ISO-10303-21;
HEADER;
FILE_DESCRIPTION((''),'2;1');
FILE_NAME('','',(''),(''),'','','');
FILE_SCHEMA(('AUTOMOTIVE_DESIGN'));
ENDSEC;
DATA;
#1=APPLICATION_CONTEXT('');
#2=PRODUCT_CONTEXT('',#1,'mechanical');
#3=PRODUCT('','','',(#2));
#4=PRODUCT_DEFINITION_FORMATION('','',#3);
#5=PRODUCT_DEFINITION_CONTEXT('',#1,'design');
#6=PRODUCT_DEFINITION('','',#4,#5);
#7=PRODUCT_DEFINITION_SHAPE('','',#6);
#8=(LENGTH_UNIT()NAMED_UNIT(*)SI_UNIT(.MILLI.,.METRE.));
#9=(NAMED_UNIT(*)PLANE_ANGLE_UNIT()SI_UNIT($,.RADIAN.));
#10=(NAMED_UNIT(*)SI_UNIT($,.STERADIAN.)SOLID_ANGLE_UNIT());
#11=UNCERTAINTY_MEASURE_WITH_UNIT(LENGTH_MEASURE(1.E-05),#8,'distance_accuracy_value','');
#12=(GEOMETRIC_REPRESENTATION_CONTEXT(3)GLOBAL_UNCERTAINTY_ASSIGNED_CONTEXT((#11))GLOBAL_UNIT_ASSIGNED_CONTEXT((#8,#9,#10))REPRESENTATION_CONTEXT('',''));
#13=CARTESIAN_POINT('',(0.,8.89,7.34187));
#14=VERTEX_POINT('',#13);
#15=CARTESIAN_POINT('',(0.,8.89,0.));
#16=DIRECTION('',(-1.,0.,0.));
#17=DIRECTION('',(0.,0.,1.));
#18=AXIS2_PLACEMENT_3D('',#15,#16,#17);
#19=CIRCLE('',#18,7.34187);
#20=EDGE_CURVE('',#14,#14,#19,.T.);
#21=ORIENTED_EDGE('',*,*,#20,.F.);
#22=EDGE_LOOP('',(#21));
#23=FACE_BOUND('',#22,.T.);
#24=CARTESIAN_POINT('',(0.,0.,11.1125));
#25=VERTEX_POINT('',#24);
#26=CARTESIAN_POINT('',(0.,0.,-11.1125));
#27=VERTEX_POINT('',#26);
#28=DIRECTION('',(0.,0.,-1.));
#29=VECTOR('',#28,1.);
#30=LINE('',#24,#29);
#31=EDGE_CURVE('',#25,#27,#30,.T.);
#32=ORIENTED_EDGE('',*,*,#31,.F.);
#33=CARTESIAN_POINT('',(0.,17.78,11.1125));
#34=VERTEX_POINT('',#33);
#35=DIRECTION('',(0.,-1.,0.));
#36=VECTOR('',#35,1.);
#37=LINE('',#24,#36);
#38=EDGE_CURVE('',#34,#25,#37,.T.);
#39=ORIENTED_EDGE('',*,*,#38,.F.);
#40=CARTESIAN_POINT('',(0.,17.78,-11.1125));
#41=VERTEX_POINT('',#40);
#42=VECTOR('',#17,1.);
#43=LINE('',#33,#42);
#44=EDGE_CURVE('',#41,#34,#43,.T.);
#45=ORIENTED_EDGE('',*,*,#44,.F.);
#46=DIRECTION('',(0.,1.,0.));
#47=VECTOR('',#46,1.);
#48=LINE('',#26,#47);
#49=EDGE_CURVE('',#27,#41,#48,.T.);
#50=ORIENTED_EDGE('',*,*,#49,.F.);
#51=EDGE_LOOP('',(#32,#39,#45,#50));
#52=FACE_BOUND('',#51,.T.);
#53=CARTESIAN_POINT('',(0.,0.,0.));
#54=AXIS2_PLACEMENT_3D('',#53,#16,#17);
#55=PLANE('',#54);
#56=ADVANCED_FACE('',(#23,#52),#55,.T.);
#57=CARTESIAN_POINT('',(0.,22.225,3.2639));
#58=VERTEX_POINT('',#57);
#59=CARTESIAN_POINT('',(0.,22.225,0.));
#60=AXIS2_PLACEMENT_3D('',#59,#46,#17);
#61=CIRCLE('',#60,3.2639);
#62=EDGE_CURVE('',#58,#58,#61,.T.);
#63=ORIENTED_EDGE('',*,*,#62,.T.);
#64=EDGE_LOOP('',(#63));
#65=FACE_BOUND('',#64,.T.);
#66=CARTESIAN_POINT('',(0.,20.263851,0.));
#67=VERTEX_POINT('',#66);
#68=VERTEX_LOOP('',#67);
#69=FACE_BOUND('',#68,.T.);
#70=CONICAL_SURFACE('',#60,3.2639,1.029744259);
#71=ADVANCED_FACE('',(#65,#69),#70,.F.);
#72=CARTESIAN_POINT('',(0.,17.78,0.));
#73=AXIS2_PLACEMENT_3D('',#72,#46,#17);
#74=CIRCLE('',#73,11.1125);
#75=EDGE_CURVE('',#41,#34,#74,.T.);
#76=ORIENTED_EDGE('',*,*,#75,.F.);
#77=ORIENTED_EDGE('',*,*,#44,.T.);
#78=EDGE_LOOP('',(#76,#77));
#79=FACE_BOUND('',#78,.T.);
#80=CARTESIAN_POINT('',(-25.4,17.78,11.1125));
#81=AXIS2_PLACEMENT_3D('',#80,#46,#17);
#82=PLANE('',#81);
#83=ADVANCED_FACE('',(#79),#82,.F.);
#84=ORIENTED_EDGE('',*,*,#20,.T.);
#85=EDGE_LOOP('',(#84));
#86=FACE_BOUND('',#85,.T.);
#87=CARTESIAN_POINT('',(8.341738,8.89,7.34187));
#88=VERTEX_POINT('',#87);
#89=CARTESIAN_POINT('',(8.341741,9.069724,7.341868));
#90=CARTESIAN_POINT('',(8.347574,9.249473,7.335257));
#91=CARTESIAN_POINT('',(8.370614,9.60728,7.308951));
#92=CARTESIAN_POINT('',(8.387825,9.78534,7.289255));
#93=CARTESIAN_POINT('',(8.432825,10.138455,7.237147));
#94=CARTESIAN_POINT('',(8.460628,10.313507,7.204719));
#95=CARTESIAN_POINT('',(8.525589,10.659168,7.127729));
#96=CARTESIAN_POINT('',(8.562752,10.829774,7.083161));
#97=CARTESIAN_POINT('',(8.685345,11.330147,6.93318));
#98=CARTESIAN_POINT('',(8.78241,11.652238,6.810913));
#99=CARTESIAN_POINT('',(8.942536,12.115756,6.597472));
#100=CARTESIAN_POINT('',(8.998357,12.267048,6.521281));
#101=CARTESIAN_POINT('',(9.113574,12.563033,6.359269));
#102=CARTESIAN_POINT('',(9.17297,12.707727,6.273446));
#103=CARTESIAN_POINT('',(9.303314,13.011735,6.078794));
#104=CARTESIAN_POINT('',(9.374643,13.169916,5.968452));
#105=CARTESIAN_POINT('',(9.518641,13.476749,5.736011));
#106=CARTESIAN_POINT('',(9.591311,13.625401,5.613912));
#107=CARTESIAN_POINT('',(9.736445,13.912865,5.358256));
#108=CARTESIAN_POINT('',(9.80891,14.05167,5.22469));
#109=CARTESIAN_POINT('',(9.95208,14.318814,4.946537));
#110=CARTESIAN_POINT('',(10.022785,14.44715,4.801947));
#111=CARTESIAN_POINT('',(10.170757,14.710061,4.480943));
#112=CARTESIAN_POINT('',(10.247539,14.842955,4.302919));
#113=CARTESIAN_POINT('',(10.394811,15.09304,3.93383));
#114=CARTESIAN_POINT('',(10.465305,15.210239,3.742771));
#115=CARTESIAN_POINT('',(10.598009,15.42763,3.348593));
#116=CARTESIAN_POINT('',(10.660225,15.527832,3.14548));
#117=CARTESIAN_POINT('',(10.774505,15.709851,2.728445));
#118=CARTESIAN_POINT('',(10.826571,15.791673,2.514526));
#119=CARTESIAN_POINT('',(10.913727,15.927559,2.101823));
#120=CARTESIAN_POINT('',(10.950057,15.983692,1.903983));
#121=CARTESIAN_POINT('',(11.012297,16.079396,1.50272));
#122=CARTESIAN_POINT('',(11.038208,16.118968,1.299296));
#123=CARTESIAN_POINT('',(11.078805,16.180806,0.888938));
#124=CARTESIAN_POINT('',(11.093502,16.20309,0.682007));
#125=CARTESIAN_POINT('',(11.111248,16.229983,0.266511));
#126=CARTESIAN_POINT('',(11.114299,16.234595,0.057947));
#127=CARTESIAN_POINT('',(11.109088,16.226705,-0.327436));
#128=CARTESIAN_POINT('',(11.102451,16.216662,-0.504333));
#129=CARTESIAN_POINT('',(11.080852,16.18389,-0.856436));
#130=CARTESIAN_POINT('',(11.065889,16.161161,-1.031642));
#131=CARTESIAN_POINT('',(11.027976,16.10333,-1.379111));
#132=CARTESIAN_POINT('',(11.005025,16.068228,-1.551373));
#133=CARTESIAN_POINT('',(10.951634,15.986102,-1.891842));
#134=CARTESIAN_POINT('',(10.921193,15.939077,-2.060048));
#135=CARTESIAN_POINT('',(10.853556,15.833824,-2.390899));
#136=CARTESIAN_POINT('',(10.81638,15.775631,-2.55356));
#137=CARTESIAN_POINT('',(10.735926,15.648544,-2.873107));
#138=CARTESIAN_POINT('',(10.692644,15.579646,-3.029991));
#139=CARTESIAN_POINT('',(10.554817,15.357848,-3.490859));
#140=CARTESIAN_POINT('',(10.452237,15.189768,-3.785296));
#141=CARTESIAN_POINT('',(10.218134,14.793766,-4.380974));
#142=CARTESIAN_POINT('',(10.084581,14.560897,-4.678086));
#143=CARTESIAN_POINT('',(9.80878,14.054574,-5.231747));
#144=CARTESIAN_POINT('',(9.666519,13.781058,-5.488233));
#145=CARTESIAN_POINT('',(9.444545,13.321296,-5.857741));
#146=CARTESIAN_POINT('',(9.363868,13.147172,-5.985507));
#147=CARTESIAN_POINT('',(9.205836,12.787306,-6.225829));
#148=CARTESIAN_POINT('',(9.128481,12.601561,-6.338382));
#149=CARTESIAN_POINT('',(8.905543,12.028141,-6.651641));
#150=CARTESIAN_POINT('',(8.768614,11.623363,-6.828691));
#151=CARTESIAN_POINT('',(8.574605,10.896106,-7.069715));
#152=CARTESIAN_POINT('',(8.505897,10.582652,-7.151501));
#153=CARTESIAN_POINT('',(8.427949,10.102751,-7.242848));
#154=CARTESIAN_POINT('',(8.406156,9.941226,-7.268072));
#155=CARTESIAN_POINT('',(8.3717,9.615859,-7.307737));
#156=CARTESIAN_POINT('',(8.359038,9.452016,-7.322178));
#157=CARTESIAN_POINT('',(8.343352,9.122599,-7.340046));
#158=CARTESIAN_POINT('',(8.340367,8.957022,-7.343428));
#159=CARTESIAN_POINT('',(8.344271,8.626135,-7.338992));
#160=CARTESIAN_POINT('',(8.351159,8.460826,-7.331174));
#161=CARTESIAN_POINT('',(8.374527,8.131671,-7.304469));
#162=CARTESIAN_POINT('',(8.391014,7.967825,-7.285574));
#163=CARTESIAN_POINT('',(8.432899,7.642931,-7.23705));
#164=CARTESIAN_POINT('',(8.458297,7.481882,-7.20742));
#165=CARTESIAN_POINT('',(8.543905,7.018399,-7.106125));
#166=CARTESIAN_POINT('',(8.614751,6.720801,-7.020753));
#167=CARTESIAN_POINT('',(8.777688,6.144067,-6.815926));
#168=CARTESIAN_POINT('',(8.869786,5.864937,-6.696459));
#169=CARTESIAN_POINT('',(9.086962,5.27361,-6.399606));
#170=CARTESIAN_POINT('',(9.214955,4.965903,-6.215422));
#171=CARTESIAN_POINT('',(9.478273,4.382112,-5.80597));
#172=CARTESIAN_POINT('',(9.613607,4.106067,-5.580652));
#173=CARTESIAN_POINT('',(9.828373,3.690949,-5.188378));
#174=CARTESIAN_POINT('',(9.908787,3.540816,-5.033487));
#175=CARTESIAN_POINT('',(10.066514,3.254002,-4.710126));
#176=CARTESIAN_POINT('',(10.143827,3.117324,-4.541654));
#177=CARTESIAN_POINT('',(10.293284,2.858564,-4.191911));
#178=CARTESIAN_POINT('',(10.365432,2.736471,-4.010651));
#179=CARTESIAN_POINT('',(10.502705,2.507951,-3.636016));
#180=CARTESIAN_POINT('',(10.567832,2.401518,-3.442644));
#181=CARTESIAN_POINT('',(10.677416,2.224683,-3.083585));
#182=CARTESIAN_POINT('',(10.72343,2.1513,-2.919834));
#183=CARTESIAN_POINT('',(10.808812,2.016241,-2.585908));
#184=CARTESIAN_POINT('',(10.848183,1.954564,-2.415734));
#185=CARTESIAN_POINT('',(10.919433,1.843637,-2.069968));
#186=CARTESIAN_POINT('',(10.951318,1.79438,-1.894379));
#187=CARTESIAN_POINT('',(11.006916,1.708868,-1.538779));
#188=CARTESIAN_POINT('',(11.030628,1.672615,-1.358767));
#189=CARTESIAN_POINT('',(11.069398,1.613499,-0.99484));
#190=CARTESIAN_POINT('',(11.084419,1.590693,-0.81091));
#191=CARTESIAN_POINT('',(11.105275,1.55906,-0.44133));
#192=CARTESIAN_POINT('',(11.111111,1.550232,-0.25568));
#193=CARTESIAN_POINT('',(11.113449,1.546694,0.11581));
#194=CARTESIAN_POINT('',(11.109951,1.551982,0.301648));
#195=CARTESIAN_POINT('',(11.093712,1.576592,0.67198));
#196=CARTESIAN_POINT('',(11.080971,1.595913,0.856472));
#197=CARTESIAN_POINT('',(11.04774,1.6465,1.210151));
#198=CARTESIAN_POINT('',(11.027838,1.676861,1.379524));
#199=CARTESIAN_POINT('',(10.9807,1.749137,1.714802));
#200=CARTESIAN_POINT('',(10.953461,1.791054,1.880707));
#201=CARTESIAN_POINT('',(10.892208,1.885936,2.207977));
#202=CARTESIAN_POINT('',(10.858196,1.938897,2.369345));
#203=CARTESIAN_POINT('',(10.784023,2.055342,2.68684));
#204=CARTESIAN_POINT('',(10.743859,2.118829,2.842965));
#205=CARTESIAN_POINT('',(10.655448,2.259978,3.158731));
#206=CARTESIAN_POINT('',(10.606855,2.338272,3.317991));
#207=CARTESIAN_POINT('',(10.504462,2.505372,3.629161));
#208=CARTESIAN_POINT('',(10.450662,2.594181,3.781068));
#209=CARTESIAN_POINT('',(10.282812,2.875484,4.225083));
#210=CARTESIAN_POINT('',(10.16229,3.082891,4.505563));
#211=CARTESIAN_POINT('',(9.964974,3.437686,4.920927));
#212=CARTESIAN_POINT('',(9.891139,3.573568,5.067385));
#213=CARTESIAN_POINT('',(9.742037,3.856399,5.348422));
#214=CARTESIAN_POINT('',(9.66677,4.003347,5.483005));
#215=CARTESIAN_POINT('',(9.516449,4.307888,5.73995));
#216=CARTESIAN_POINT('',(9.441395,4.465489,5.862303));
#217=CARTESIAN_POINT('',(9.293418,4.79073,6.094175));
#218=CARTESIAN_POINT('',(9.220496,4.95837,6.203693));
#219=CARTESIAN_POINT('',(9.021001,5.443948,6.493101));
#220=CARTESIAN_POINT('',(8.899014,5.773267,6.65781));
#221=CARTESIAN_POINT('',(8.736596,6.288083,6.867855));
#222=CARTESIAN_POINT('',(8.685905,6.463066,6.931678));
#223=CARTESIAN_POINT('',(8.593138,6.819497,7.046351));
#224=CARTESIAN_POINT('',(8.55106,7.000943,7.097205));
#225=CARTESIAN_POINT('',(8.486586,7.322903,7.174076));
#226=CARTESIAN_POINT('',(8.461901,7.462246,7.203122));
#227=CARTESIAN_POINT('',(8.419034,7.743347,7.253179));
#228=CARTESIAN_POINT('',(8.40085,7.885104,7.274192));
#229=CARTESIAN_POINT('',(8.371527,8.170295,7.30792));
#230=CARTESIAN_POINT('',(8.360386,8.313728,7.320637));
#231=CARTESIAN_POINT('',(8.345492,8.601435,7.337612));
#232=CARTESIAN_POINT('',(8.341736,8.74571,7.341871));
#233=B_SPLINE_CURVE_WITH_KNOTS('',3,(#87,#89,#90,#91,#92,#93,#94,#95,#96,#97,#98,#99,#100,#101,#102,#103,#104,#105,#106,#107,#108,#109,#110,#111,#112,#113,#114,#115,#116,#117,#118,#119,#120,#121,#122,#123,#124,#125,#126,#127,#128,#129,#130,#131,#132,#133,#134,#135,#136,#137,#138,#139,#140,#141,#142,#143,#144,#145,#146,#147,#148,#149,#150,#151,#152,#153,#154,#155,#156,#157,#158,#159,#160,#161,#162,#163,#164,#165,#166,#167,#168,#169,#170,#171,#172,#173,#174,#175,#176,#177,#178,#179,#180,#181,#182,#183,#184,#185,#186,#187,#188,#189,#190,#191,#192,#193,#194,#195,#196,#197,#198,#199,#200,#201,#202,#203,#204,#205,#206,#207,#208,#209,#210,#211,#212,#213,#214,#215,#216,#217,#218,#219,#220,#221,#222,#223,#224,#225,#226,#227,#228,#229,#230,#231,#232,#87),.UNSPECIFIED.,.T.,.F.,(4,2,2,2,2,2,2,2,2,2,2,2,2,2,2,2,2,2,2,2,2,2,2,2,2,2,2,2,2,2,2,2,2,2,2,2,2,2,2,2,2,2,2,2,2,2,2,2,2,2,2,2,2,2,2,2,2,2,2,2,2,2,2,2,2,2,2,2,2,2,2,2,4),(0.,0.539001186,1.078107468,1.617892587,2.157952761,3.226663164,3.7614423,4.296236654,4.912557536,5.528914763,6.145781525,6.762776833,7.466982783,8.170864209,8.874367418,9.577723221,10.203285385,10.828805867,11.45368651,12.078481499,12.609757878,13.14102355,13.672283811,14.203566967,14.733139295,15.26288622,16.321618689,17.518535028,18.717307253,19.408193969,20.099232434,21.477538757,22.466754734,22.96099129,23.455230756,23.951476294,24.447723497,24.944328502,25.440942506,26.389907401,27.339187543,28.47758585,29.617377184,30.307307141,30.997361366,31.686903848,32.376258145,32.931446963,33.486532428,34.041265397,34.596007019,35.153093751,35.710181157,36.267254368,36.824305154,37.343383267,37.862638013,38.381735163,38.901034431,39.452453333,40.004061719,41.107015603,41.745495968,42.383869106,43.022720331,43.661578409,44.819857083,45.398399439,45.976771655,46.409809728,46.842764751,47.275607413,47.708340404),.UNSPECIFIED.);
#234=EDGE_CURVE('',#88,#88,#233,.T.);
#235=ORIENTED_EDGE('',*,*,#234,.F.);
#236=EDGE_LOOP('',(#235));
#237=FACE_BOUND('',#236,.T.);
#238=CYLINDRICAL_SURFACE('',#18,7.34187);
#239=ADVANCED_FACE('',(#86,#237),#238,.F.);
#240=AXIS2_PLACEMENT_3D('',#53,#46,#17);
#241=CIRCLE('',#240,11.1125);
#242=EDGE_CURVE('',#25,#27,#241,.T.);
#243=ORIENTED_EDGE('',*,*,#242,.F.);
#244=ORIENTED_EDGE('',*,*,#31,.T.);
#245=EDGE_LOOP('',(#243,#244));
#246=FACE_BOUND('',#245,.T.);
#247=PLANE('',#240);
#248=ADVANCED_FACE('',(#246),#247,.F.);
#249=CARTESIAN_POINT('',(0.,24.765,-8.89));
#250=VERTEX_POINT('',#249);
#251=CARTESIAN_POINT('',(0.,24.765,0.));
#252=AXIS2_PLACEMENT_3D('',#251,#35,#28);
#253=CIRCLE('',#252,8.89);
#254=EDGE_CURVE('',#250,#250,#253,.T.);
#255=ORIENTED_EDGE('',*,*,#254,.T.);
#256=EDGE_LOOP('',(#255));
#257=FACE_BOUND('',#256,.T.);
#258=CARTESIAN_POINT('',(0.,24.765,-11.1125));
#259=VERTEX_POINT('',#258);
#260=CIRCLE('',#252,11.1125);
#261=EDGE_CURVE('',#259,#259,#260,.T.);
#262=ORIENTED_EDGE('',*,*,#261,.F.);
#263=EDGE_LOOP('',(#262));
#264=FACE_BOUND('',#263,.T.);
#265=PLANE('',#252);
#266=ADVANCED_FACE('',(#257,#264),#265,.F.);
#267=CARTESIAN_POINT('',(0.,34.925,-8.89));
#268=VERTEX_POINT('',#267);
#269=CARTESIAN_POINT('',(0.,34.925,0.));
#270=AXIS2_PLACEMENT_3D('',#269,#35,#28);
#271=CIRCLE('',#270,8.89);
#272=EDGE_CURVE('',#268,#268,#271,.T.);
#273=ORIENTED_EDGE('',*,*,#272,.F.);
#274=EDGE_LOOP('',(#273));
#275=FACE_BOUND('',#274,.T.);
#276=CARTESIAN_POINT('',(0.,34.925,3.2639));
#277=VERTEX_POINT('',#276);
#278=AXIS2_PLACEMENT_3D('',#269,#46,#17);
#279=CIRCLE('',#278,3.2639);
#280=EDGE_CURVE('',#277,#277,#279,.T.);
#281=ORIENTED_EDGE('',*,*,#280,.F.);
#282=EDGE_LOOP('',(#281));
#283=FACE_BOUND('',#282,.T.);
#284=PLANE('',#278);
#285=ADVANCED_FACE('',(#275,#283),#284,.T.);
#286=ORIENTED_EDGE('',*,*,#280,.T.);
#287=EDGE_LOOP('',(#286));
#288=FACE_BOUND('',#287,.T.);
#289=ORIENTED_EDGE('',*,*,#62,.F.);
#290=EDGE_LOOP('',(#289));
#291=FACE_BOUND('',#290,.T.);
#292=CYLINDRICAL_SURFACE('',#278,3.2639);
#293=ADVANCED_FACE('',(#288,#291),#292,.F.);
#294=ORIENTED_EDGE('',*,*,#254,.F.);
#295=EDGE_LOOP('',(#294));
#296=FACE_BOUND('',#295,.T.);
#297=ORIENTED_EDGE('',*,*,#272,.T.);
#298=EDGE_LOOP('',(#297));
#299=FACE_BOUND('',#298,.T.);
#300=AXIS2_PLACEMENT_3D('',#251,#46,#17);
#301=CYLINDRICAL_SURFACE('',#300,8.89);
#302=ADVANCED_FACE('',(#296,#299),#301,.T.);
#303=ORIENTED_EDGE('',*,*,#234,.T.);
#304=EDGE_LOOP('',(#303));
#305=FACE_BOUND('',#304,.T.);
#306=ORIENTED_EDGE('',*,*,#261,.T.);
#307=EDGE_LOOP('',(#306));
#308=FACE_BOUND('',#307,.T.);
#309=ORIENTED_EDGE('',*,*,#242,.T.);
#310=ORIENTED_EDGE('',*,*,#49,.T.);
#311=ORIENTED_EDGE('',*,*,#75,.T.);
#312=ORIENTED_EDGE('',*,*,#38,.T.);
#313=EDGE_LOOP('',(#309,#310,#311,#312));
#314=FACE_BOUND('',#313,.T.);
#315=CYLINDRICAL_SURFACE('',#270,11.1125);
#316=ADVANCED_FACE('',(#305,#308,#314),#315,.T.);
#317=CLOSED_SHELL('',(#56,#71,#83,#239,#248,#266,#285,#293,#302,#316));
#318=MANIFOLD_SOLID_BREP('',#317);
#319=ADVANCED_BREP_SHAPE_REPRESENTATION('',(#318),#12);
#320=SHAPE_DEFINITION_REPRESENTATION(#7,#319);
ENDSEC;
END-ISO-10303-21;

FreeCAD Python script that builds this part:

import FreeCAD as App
import Part
import Sketcher

V = App.Vector
Q = App.Units.Quantity

doc = App.newDocument("Part")
params = doc.addObject("Spreadsheet::Sheet", "Params")
for row, (alias, value) in enumerate([
    ("sketch1_diameter", "0.875 in"),
    ("pad1_length", "1.375 in"),
    ("sketch2_diameter", "0.7 in"),
    ("sketch2_diameter2", "0.875 in"),
    ("pocket1_length", "0.4 in"),
    ("sketch3_diameter", "0.257 in"),
    ("hole_diameter", "0.257 in"),
    ("hole_depth", "0.5 in"),
    ("sketch4_width", "0.7 in"),
    ("sketch4_height", "0.875 in"),
    ("pocket2_length", "1 in"),
    ("hole2_diameter", "0.5781 in"),
    ("hole2_depth", "1.5275 in"),
], start=1):
    params.set(f"A{row}", alias)
    params.set(f"B{row}", "=" + value)
    params.setAlias(f"B{row}", alias)

body = doc.addObject("PartDesign::Body", "Body")

# Sketch on XZ plane
sketch1 = body.newObject("Sketcher::SketchObject", "Sketch")
sketch1.AttachmentSupport = (doc.getObject("XZ_Plane"), [""])
sketch1.MapMode = "FlatFace"
sketch1.addGeometry(Part.Circle(V(0, 0, 0), V(0, 0, 1), 11), False)
sketch1.addConstraint(Sketcher.Constraint("Coincident", 0, 3, -1, 1))
sketch1.addConstraint(Sketcher.Constraint("Diameter", 0, Q("0.875 in")))
sketch1.setExpression("Constraints[1]", "Params.sketch1_diameter")
pad1 = body.newObject("PartDesign::Pad", "Pad")
pad1.Profile = sketch1
pad1.setExpression("Length", "Params.pad1_length")
pad1.Reversed = True

# Sketch on XZ plane
sketch2 = body.newObject("Sketcher::SketchObject", "Sketch001")
sketch2.AttachmentSupport = (doc.getObject("XZ_Plane"), [""])
sketch2.MapMode = "FlatFace"
sketch2.AttachmentOffset = App.Placement(V(0, 0, -0.975 * 25.4), App.Rotation())
sketch2.addGeometry(Part.Circle(V(0, 0, 0), V(0, 0, 1), 11), False)
sketch2.addGeometry(Part.Circle(V(0, 0, 0), V(0, 0, 1), 9), False)
sketch2.addConstraint(Sketcher.Constraint("Coincident", 0, 3, -1, 1))
sketch2.addConstraint(Sketcher.Constraint("Coincident", 1, 3, -1, 1))
sketch2.addConstraint(Sketcher.Constraint("Diameter", 1, Q("0.7 in")))
sketch2.addConstraint(Sketcher.Constraint("Diameter", 0, Q("0.875 in")))
sketch2.setExpression("Constraints[2]", "Params.sketch2_diameter")
sketch2.setExpression("Constraints[3]", "Params.sketch2_diameter2")
pocket1 = body.newObject("PartDesign::Pocket", "Pocket")
pocket1.Profile = sketch2
pocket1.setExpression("Length", "Params.pocket1_length")

# Sketch on XZ plane
sketch3 = body.newObject("Sketcher::SketchObject", "Sketch002")
sketch3.AttachmentSupport = (doc.getObject("XZ_Plane"), [""])
sketch3.MapMode = "FlatFace"
sketch3.AttachmentOffset = App.Placement(V(0, 0, -1.375 * 25.4), App.Rotation())
sketch3.addGeometry(Part.Circle(V(0, 0, 0), V(0, 0, 1), 3.3), False)
sketch3.addConstraint(Sketcher.Constraint("Coincident", 0, 3, -1, 1))
sketch3.addConstraint(Sketcher.Constraint("Diameter", 0, Q("0.257 in")))
sketch3.setExpression("Constraints[1]", "Params.sketch3_diameter")
doc.recompute()
hole = body.newObject("PartDesign::Hole", "Hole")
hole.Profile = sketch3
hole.ThreadType = "None"
hole.setExpression("Diameter", "Params.hole_diameter")
hole.DepthType = "Dimension"
hole.setExpression("Depth", "Params.hole_depth")
hole.DrillPoint = "Angled"
hole.DrillPointAngle = 118
hole.Reversed = True

# Sketch on YZ plane
sketch4 = body.newObject("Sketcher::SketchObject", "Sketch003")
sketch4.AttachmentSupport = (doc.getObject("YZ_Plane"), [""])
sketch4.MapMode = "FlatFace"
sketch4.addGeometry(Part.LineSegment(V(18, 11, 0), V(0, 11, 0)), False)
sketch4.addGeometry(Part.LineSegment(V(0, 11, 0), V(0, -11, 0)), False)
sketch4.addGeometry(Part.LineSegment(V(0, -11, 0), V(18, -11, 0)), False)
sketch4.addGeometry(Part.LineSegment(V(18, -11, 0), V(18, 11, 0)), False)
sketch4.addConstraint(Sketcher.Constraint("Coincident", 0, 2, 1, 1))
sketch4.addConstraint(Sketcher.Constraint("Coincident", 1, 2, 2, 1))
sketch4.addConstraint(Sketcher.Constraint("Coincident", 2, 2, 3, 1))
sketch4.addConstraint(Sketcher.Constraint("Coincident", 3, 2, 0, 1))
sketch4.addConstraint(Sketcher.Constraint("Horizontal", 0))
sketch4.addConstraint(Sketcher.Constraint("Vertical", 1))
sketch4.addConstraint(Sketcher.Constraint("Horizontal", 2))
sketch4.addConstraint(Sketcher.Constraint("Vertical", 3))
sketch4.addConstraint(Sketcher.Constraint("Symmetric", 0, 2, 1, 2, -1, 1))
sketch4.addConstraint(Sketcher.Constraint("DistanceX", 0, 2, 0, 1, Q("0.7 in")))
sketch4.addConstraint(Sketcher.Constraint("DistanceY", 1, 2, 1, 1, Q("0.875 in")))
sketch4.setExpression("Constraints[9]", "Params.sketch4_width")
sketch4.setExpression("Constraints[10]", "Params.sketch4_height")
pocket2 = body.newObject("PartDesign::Pocket", "Pocket001")
pocket2.Profile = sketch4
pocket2.setExpression("Length", "Params.pocket2_length")

# Sketch on YZ plane
sketch5 = body.newObject("Sketcher::SketchObject", "Sketch004")
sketch5.AttachmentSupport = (doc.getObject("YZ_Plane"), [""])
sketch5.MapMode = "FlatFace"
sketch5.addGeometry(Part.Circle(V(9, 0, 0), V(0, 0, 1), 7), False)
sketch5.addConstraint(Sketcher.Constraint("PointOnObject", 0, 3, -1))
sketch5.addConstraint(Sketcher.Constraint("Diameter", 0, Q("0.5781 in")))
sketch5.addConstraint(Sketcher.Constraint("DistanceX", -1, 1, 0, 3, Q("0.35 in")))
doc.recompute()
hole2 = body.newObject("PartDesign::Hole", "Hole001")
hole2.Profile = sketch5
hole2.ThreadType = "None"
hole2.setExpression("Diameter", "Params.hole2_diameter")
hole2.DepthType = "Dimension"
hole2.setExpression("Depth", "Params.hole2_depth")
hole2.DrillPoint = "Angled"
hole2.DrillPointAngle = 118
hole2.Reversed = True

doc.recompute()
